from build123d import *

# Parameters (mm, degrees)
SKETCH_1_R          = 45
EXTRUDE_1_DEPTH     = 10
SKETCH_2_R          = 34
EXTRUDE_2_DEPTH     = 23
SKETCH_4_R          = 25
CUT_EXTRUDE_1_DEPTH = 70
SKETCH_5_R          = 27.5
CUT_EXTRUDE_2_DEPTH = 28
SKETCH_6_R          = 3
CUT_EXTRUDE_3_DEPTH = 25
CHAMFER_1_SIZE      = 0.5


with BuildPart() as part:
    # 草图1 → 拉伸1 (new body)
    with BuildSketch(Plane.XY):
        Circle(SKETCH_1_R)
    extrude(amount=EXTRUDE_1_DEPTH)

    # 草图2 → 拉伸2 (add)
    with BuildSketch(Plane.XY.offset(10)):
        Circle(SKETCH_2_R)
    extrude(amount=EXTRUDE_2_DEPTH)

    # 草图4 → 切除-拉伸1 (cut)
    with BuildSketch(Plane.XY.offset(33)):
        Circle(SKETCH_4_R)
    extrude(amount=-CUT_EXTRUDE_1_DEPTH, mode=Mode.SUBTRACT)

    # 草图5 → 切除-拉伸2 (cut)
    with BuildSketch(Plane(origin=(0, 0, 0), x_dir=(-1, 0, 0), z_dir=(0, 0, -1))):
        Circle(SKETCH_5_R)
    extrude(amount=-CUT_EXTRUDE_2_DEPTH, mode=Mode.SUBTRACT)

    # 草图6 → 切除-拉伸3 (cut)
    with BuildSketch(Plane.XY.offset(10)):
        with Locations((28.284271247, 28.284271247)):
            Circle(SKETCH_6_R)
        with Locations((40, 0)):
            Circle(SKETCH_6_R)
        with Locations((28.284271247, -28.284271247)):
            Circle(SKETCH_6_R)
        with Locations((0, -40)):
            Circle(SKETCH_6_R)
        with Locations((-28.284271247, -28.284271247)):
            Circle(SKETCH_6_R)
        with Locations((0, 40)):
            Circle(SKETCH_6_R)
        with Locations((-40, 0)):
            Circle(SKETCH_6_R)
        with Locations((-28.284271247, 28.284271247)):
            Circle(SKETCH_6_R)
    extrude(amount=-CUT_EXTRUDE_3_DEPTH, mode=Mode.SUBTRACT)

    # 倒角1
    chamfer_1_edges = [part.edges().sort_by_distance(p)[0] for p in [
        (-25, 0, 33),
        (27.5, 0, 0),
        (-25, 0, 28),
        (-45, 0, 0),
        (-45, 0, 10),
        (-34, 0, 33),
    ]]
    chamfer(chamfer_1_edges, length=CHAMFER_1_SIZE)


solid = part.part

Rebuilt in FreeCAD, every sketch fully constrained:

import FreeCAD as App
import Part
import Sketcher

V = App.Vector
Q = App.Units.Quantity


def edges_at(feature, points):
    """Names of the edges that pass closest to the given points."""
    edges = feature.Shape.Edges
    near = lambda p: min(range(len(edges)), key=lambda i: edges[i].distToShape(Part.Vertex(*p))[0])
    return sorted({f"Edge{near(p) + 1}" for p in points})

doc = App.newDocument("Part")
body = doc.addObject("PartDesign::Body", "Body")

sketch1 = body.newObject("Sketcher::SketchObject", "Sketch")
sketch1.AttachmentSupport = (doc.getObject("XY_Plane"), [""])
sketch1.MapMode = "FlatFace"
sketch1.addGeometry(Part.Circle(V(0, 0, 0), V(0, 0, 1), 45), False)
sketch1.addConstraint([
    Sketcher.Constraint("Coincident", 0, 3, -1, 1),
    Sketcher.Constraint("Diameter", 0, Q("90 mm")),
])
pad1 = body.newObject("PartDesign::Pad", "Pad")
pad1.Profile = sketch1
pad1.Length = 10

sketch2 = body.newObject("Sketcher::SketchObject", "Sketch001")
sketch2.AttachmentSupport = (doc.getObject("XY_Plane"), [""])
sketch2.MapMode = "FlatFace"
sketch2.AttachmentOffset = App.Placement(V(0, 0, 10), App.Rotation())
sketch2.addGeometry(Part.Circle(V(0, 0, 0), V(0, 0, 1), 34), False)
sketch2.addConstraint([
    Sketcher.Constraint("Coincident", 0, 3, -1, 1),
    Sketcher.Constraint("Diameter", 0, Q("68 mm")),
])
pad2 = body.newObject("PartDesign::Pad", "Pad001")
pad2.Profile = sketch2
pad2.Length = 23

sketch3 = body.newObject("Sketcher::SketchObject", "Sketch002")
sketch3.AttachmentSupport = (doc.getObject("XY_Plane"), [""])
sketch3.MapMode = "FlatFace"
sketch3.AttachmentOffset = App.Placement(V(0, 0, 33), App.Rotation())
sketch3.addGeometry(Part.Circle(V(0, 0, 0), V(0, 0, 1), 25), False)
sketch3.addConstraint([
    Sketcher.Constraint("Coincident", 0, 3, -1, 1),
    Sketcher.Constraint("Diameter", 0, Q("50 mm")),
])
pocket1 = body.newObject("PartDesign::Pocket", "Pocket")
pocket1.Profile = sketch3
pocket1.Length = 70

sketch4 = body.newObject("Sketcher::SketchObject", "Sketch003")
sketch4.AttachmentSupport = (doc.getObject("XY_Plane"), [""])
sketch4.MapMode = "FlatFace"
sketch4.addGeometry(Part.Circle(V(0, 0, 0), V(0, 0, 1), 28), False)
sketch4.addConstraint([
    Sketcher.Constraint("Coincident", 0, 3, -1, 1),
    Sketcher.Constraint("Diameter", 0, Q("55 mm")),
])
pocket2 = body.newObject("PartDesign::Pocket", "Pocket001")
pocket2.Profile = sketch4
pocket2.Length = 28
pocket2.Reversed = True

sketch5 = body.newObject("Sketcher::SketchObject", "Sketch004")
sketch5.AttachmentSupport = (doc.getObject("XY_Plane"), [""])
sketch5.MapMode = "FlatFace"
sketch5.AttachmentOffset = App.Placement(V(0, 0, 10), App.Rotation())
sketch5.addGeometry([
    Part.Circle(V(28.3, 28.3, 0), V(0, 0, 1), 3),
    Part.Circle(V(40, 0, 0), V(0, 0, 1), 3),
    Part.Circle(V(28.3, -28.3, 0), V(0, 0, 1), 3),
    Part.Circle(V(0, -40, 0), V(0, 0, 1), 3),
    Part.Circle(V(-28.3, -28.3, 0), V(0, 0, 1), 3),
    Part.Circle(V(0, 40, 0), V(0, 0, 1), 3),
    Part.Circle(V(-40, 0, 0), V(0, 0, 1), 3),
    Part.Circle(V(-28.3, 28.3, 0), V(0, 0, 1), 3),
], False)
sketch5.addConstraint([
    Sketcher.Constraint("Equal", 0, 1),
    Sketcher.Constraint("Equal", 1, 2),
    Sketcher.Constraint("Equal", 2, 3),
    Sketcher.Constraint("Equal", 3, 4),
    Sketcher.Constraint("Equal", 4, 5),
    Sketcher.Constraint("Equal", 5, 6),
    Sketcher.Constraint("Equal", 6, 7),
    Sketcher.Constraint("Symmetric", 0, 3, 4, 3, -1, 1),
    Sketcher.Constraint("Symmetric", 3, 3, 5, 3, -1, 1),
    Sketcher.Constraint("Symmetric", 1, 3, 6, 3, -1, 1),
    Sketcher.Constraint("Symmetric", 2, 3, 7, 3, -1, 1),
    Sketcher.Constraint("Symmetric", 2, 3, 4, 3, -2),
    Sketcher.Constraint("PointOnObject", 1, 3, -1),
    Sketcher.Constraint("PointOnObject", 3, 3, -2),
    Sketcher.Constraint("Diameter", 0, Q("6 mm")),
    Sketcher.Constraint("DistanceX", -1, 1, 1, 3, Q("40 mm")),
    Sketcher.Constraint("DistanceY", 3, 3, -1, 1, Q("40 mm")),
    Sketcher.Constraint("DistanceX", -1, 1, 0, 3, Q("28.284271 mm")),
    Sketcher.Constraint("DistanceY", -1, 1, 0, 3, Q("28.284271 mm")),
])
pocket3 = body.newObject("PartDesign::Pocket", "Pocket002")
pocket3.Profile = sketch5
pocket3.Length = 25
doc.recompute()

chamfer = body.newObject("PartDesign::Chamfer", "Chamfer")
chamfer.Base = (pocket3, edges_at(pocket3, [
    (-25, 0, 33),
    (27.5, 0, 0),
    (-25, 0, 28),
    (-45, 0, 0),
    (-45, 0, 10),
    (-34, 0, 33),
]))
chamfer.Size = 0.5

doc.recompute()
